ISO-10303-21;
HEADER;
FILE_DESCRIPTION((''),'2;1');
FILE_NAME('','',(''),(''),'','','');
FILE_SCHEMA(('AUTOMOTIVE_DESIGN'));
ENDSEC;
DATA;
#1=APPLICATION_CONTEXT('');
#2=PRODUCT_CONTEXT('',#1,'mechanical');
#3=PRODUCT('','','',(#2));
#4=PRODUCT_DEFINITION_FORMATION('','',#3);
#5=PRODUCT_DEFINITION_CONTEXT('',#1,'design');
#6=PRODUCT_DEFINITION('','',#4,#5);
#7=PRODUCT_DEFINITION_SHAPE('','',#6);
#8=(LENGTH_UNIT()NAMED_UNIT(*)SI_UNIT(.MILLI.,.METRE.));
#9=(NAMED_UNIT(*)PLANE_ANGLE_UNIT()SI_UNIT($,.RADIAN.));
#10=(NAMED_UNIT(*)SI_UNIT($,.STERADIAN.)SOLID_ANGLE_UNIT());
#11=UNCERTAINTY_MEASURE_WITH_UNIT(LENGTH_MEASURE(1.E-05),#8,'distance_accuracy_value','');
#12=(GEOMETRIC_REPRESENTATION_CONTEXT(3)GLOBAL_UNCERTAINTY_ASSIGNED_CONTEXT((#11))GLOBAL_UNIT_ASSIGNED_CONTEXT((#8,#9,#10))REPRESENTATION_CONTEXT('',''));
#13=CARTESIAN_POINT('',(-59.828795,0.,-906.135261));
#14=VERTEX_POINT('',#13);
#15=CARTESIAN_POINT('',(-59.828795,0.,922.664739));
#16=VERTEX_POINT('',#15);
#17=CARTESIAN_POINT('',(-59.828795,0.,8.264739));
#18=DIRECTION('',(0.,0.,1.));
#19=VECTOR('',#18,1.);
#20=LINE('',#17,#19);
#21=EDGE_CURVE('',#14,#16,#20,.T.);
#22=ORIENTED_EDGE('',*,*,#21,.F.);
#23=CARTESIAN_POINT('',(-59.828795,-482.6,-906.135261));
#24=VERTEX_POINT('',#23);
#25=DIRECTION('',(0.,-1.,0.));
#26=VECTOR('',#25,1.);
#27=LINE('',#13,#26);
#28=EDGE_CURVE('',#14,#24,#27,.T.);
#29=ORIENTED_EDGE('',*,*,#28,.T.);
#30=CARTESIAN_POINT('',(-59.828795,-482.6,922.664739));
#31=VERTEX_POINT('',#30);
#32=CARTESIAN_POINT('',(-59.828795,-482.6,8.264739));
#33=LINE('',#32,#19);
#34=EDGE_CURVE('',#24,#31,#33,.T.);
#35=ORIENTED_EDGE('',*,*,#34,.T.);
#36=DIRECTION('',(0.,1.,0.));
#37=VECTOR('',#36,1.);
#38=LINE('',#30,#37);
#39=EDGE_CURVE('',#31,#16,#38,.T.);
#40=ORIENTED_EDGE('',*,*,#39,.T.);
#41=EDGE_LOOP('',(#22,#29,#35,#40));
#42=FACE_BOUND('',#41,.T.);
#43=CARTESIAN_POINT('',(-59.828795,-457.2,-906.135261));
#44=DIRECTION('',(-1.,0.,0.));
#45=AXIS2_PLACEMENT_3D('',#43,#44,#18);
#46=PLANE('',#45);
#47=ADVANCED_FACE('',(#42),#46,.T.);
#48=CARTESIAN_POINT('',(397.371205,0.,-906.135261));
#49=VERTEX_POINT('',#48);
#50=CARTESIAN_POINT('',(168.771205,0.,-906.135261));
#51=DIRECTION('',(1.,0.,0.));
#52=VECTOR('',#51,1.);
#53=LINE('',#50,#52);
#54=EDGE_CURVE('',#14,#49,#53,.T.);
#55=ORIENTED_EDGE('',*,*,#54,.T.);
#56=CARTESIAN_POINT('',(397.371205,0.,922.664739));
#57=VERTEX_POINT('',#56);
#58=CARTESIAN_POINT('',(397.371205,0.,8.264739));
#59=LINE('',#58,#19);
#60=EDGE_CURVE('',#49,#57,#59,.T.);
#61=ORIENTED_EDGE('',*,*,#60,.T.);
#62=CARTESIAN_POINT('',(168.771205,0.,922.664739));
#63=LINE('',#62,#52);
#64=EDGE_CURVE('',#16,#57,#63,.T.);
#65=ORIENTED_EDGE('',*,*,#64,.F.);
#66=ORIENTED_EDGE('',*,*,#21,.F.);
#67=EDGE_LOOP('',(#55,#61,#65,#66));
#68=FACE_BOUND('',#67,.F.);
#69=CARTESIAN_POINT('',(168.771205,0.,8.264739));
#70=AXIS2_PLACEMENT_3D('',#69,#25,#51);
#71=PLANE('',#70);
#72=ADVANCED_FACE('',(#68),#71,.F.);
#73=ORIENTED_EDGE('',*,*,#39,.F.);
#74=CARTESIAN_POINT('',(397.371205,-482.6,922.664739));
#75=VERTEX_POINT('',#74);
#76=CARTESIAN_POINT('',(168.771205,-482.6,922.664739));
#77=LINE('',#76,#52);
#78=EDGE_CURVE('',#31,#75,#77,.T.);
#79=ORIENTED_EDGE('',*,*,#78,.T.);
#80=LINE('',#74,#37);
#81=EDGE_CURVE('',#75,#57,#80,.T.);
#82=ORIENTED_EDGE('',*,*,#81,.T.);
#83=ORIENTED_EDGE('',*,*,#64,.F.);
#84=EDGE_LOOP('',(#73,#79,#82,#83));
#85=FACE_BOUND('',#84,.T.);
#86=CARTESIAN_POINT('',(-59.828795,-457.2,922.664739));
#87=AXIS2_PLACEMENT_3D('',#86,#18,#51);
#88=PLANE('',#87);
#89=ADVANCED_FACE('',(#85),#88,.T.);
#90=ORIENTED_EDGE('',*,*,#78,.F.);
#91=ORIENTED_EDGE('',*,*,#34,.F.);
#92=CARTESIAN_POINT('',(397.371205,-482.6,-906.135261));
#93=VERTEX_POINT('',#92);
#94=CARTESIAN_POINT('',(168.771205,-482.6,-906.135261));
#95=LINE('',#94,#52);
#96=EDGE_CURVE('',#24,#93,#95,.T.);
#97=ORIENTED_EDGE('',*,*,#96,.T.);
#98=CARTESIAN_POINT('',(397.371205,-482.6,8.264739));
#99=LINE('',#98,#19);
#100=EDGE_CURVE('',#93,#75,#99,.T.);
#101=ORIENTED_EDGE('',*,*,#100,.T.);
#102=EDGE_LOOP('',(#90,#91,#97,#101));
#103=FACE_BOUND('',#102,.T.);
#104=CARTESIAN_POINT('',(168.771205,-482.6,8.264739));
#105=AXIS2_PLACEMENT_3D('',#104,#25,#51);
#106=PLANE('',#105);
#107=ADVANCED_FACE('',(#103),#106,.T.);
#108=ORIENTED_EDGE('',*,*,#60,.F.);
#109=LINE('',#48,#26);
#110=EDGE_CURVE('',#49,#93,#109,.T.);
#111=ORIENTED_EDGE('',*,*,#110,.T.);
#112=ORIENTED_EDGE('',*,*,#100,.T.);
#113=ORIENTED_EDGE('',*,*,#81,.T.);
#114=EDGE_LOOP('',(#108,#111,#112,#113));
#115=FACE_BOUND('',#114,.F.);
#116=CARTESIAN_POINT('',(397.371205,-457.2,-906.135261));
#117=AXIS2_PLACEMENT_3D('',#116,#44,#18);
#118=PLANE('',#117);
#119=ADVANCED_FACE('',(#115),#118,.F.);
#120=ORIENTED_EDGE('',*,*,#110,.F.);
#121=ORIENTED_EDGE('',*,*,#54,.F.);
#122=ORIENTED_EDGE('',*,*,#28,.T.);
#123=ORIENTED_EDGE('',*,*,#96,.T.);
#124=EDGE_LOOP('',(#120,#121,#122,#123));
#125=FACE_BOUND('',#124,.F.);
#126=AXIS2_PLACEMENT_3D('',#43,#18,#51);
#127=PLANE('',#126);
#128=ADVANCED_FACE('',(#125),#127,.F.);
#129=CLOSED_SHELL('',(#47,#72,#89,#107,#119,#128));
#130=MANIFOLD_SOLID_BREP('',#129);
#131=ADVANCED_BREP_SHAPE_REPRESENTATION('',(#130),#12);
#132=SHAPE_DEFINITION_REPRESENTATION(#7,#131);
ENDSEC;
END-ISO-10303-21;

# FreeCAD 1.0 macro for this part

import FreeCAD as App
import Part
import Sketcher
Q = App.Units.Quantity

doc = App.newDocument("Part")
body = doc.addObject("PartDesign::Body", "Body")

# Sketch on XZ plane
sketch1 = body.newObject("Sketcher::SketchObject", "Sketch")
sketch1.AttachmentSupport = (doc.getObject("XZ_Plane"), [""])
sketch1.MapMode = "FlatFace"
sketch1.addGeometry(Part.LineSegment(App.Vector(-59.828795, 922.664739, 0), App.Vector(-59.828795, -906.135261, 0)), False)
sketch1.addGeometry(Part.LineSegment(App.Vector(-59.828795, -906.135261, 0), App.Vector(397.371205, -906.135261, 0)), False)
sketch1.addGeometry(Part.LineSegment(App.Vector(397.371205, -906.135261, 0), App.Vector(397.371205, 922.664739, 0)), False)
sketch1.addGeometry(Part.LineSegment(App.Vector(397.371205, 922.664739, 0), App.Vector(-59.828795, 922.664739, 0)), False)
sketch1.addConstraint(Sketcher.Constraint("Coincident", 0, 2, 1, 1))
sketch1.addConstraint(Sketcher.Constraint("Coincident", 1, 2, 2, 1))
sketch1.addConstraint(Sketcher.Constraint("Coincident", 2, 2, 3, 1))
sketch1.addConstraint(Sketcher.Constraint("Coincident", 3, 2, 0, 1))
sketch1.addConstraint(Sketcher.Constraint("Vertical", 0))
sketch1.addConstraint(Sketcher.Constraint("Horizontal", 1))
sketch1.addConstraint(Sketcher.Constraint("Vertical", 2))
sketch1.addConstraint(Sketcher.Constraint("Horizontal", 3))
sketch1.addConstraint(Sketcher.Constraint("DistanceX", 1, 1, 1, 2, Q("18 in")))
sketch1.addConstraint(Sketcher.Constraint("DistanceY", 0, 2, 0, 1, Q("72 in")))
sketch1.addConstraint(Sketcher.Constraint("DistanceY", 0, 2, -1, 1, 906.135261))
sketch1.addConstraint(Sketcher.Constraint("DistanceX", 0, 2, -1, 1, 59.828795))
pad1 = body.newObject("PartDesign::Pad", "Pad")
pad1.Profile = sketch1
pad1.Length = Q("18 in")

# Sketch on XZ plane
sketch2 = body.newObject("Sketcher::SketchObject", "Sketch001")
sketch2.AttachmentSupport = (doc.getObject("XZ_Plane"), [""])
sketch2.MapMode = "FlatFace"
sketch2.AttachmentOffset = App.Placement(App.Vector(0, 0, 18 * 25.4), App.Rotation())
sketch2.addGeometry(Part.LineSegment(App.Vector(168.482556, 874.951005, 0), App.Vector(168.482556, 617.207825, 0)), False)
sketch2.addGeometry(Part.LineSegment(App.Vector(168.482556, 617.207825, 0), App.Vector(336.965113, 617.207825, 0)), False)
sketch2.addGeometry(Part.LineSegment(App.Vector(336.965113, 617.207825, 0), App.Vector(336.965113, 874.951005, 0)), False)
sketch2.addGeometry(Part.LineSegment(App.Vector(336.965113, 874.951005, 0), App.Vector(168.482556, 874.951005, 0)), False)
sketch2.addConstraint(Sketcher.Constraint("Coincident", 0, 2, 1, 1))
sketch2.addConstraint(Sketcher.Constraint("Coincident", 1, 2, 2, 1))
sketch2.addConstraint(Sketcher.Constraint("Coincident", 2, 2, 3, 1))
sketch2.addConstraint(Sketcher.Constraint("Coincident", 3, 2, 0, 1))
sketch2.addConstraint(Sketcher.Constraint("Vertical", 0))
sketch2.addConstraint(Sketcher.Constraint("Horizontal", 1))
sketch2.addConstraint(Sketcher.Constraint("Vertical", 2))
sketch2.addConstraint(Sketcher.Constraint("Horizontal", 3))
sketch2.addConstraint(Sketcher.Constraint("DistanceY", 0, 2, 0, 1, 257.74318))
sketch2.addConstraint(Sketcher.Constraint("DistanceX", 1, 1, 1, 2, 168.482557))
sketch2.addConstraint(Sketcher.Constraint("DistanceX", -1, 1, 0, 2, 168.482556))
sketch2.addConstraint(Sketcher.Constraint("DistanceY", -1, 1, 0, 2, 617.207825))
pad2 = body.newObject("PartDesign::Pad", "Pad001")
pad2.Profile = sketch2
pad2.Length = Q("14 in")
pad2.Reversed = True

# Sketch on XZ plane
sketch3 = body.newObject("Sketcher::SketchObject", "Sketch002")
sketch3.AttachmentSupport = (doc.getObject("XZ_Plane"), [""])
sketch3.MapMode = "FlatFace"
sketch3.AttachmentOffset = App.Placement(App.Vector(0, 0, 18 * 25.4), App.Rotation())
sketch3.addGeometry(Part.LineSegment(App.Vector(-59.828795, 922.664739, 0), App.Vector(-59.828795, -906.135261, 0)), False)
sketch3.addGeometry(Part.LineSegment(App.Vector(-59.828795, -906.135261, 0), App.Vector(397.371205, -906.135261, 0)), False)
sketch3.addGeometry(Part.LineSegment(App.Vector(397.371205, -906.135261, 0), App.Vector(397.371205, 922.664739, 0)), False)
sketch3.addGeometry(Part.LineSegment(App.Vector(397.371205, 922.664739, 0), App.Vector(-59.828795, 922.664739, 0)), False)
sketch3.addConstraint(Sketcher.Constraint("Coincident", 0, 2, 1, 1))
sketch3.addConstraint(Sketcher.Constraint("Coincident", 1, 2, 2, 1))
sketch3.addConstraint(Sketcher.Constraint("Coincident", 2, 2, 3, 1))
sketch3.addConstraint(Sketcher.Constraint("Coincident", 3, 2, 0, 1))
sketch3.addConstraint(Sketcher.Constraint("Vertical", 0))
sketch3.addConstraint(Sketcher.Constraint("Horizontal", 1))
sketch3.addConstraint(Sketcher.Constraint("Vertical", 2))
sketch3.addConstraint(Sketcher.Constraint("Horizontal", 3))
sketch3.addConstraint(Sketcher.Constraint("DistanceX", 1, 1, 1, 2, Q("18 in")))
sketch3.addConstraint(Sketcher.Constraint("DistanceY", 0, 2, 0, 1, Q("72 in")))
sketch3.addConstraint(Sketcher.Constraint("DistanceY", 0, 2, -1, 1, 906.135261))
sketch3.addConstraint(Sketcher.Constraint("DistanceX", 0, 2, -1, 1, 59.828795))
pad3 = body.newObject("PartDesign::Pad", "Pad002")
pad3.Profile = sketch3
pad3.Length = Q("1 in")

doc.recompute()
